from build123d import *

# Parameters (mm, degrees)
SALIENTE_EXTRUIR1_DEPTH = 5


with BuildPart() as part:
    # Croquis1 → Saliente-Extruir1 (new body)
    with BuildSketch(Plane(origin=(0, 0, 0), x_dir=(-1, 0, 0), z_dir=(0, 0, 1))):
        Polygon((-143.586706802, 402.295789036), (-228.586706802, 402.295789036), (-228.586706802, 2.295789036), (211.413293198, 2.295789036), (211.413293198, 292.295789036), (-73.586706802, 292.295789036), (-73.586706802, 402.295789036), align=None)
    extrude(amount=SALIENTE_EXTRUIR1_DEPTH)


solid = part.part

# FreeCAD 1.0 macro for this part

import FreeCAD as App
import Part
import Sketcher

V = App.Vector


def add_polygon(sketch, points):
    """Adds a closed chain of lines whose ends are joined by coincident constraints."""
    first, n = sketch.GeometryCount, len(points)
    for a, b in zip(points, points[1:] + points[:1]):
        sketch.addGeometry(Part.LineSegment(App.Vector(*a, 0), App.Vector(*b, 0)), False)
    for i in range(n):
        sketch.addConstraint(Sketcher.Constraint("Coincident", first + i, 2, first + (i + 1) % n, 1))

doc = App.newDocument("Part")
params = doc.addObject("Spreadsheet::Sheet", "Params")
for row, (alias, value) in enumerate([
    ("sketch1_width", "440 mm"),
    ("sketch1_width2", "285 mm"),
    ("sketch1_height", "400 mm"),
    ("sketch1_height2", "290 mm"),
    ("pad1_length", "5 mm"),
], start=1):
    params.set(f"A{row}", alias)
    params.set(f"B{row}", "=" + value)
    params.setAlias(f"B{row}", alias)

body = doc.addObject("PartDesign::Body", "Body")

sketch1 = body.newObject("Sketcher::SketchObject", "Sketch")
sketch1.AttachmentSupport = (doc.getObject("XY_Plane"), [""])
sketch1.MapMode = "FlatFace"
add_polygon(sketch1, [(229, -402), (229, -2), (-211, -2), (-211, -292), (74, -292), (74, -402)])
sketch1.addConstraint(Sketcher.Constraint("Vertical", 0))
sketch1.addConstraint(Sketcher.Constraint("Horizontal", 1))
sketch1.addConstraint(Sketcher.Constraint("Vertical", 2))
sketch1.addConstraint(Sketcher.Constraint("Horizontal", 3))
sketch1.addConstraint(Sketcher.Constraint("Vertical", 4))
sketch1.addConstraint(Sketcher.Constraint("Horizontal", 5))
sketch1.addConstraint(Sketcher.Constraint("DistanceX", 1, 2, 1, 1, 440.0))
sketch1.addConstraint(Sketcher.Constraint("DistanceX", 3, 1, 3, 2, 285.0))
sketch1.addConstraint(Sketcher.Constraint("DistanceY", 0, 1, 0, 2, 400.0))
sketch1.addConstraint(Sketcher.Constraint("DistanceY", 2, 2, 2, 1, 290.0))
sketch1.addConstraint(Sketcher.Constraint("DistanceY", 0, 2, -1, 1, 2.295789))
sketch1.addConstraint(Sketcher.Constraint("DistanceX", -1, 1, 0, 2, 228.586707))
sketch1.setExpression("Constraints[12]", "Params.sketch1_width")
sketch1.setExpression("Constraints[13]", "Params.sketch1_width2")
sketch1.setExpression("Constraints[14]", "Params.sketch1_height")
sketch1.setExpression("Constraints[15]", "Params.sketch1_height2")
pad1 = body.newObject("PartDesign::Pad", "Pad")
pad1.Profile = sketch1
pad1.setExpression("Length", "Params.pad1_length")

doc.recompute()
